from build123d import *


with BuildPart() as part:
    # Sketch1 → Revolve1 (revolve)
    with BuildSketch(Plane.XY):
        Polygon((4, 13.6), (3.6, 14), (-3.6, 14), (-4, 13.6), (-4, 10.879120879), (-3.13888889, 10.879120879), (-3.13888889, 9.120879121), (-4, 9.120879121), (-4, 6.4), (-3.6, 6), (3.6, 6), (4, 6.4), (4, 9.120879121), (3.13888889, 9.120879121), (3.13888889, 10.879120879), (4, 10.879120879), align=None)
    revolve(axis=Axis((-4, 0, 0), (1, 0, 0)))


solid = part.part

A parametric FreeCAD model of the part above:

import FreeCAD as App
import Part
import Sketcher

V = App.Vector

doc = App.newDocument("Part")
body = doc.addObject("PartDesign::Body", "Body")

sketch1 = doc.addObject("Sketcher::SketchObject", "Sketch")
body.addObject(sketch1)
sketch1.AttachmentSupport = (doc.XY_Plane, [""])
sketch1.MapMode = "FlatFace"
sketch1.addGeometry(Part.LineSegment(V(4, 13.6, 0), V(3.6, 14, 0)), False)
sketch1.addGeometry(Part.LineSegment(V(3.6, 14, 0), V(-3.6, 14, 0)), False)
sketch1.addGeometry(Part.LineSegment(V(-3.6, 14, 0), V(-4, 13.6, 0)), False)
sketch1.addGeometry(Part.LineSegment(V(-4, 13.6, 0), V(-4, 10.9, 0)), False)
sketch1.addGeometry(Part.LineSegment(V(-4, 10.9, 0), V(-3.1, 10.9, 0)), False)
sketch1.addGeometry(Part.LineSegment(V(-3.1, 10.9, 0), V(-3.1, 9.1, 0)), False)
sketch1.addGeometry(Part.LineSegment(V(-3.1, 9.1, 0), V(-4, 9.1, 0)), False)
sketch1.addGeometry(Part.LineSegment(V(-4, 9.1, 0), V(-4, 6.4, 0)), False)
sketch1.addGeometry(Part.LineSegment(V(-4, 6.4, 0), V(-3.6, 6, 0)), False)
sketch1.addGeometry(Part.LineSegment(V(-3.6, 6, 0), V(3.6, 6, 0)), False)
sketch1.addGeometry(Part.LineSegment(V(3.6, 6, 0), V(4, 6.4, 0)), False)
sketch1.addGeometry(Part.LineSegment(V(4, 6.4, 0), V(4, 9.1, 0)), False)
sketch1.addGeometry(Part.LineSegment(V(4, 9.1, 0), V(3.1, 9.1, 0)), False)
sketch1.addGeometry(Part.LineSegment(V(3.1, 9.1, 0), V(3.1, 10.9, 0)), False)
sketch1.addGeometry(Part.LineSegment(V(3.1, 10.9, 0), V(4, 10.9, 0)), False)
sketch1.addGeometry(Part.LineSegment(V(4, 10.9, 0), V(4, 13.6, 0)), False)
sketch1.addConstraint(Sketcher.Constraint("Coincident", 0, 2, 1, 1))
sketch1.addConstraint(Sketcher.Constraint("Coincident", 1, 2, 2, 1))
sketch1.addConstraint(Sketcher.Constraint("Coincident", 2, 2, 3, 1))
sketch1.addConstraint(Sketcher.Constraint("Coincident", 3, 2, 4, 1))
sketch1.addConstraint(Sketcher.Constraint("Coincident", 4, 2, 5, 1))
sketch1.addConstraint(Sketcher.Constraint("Coincident", 5, 2, 6, 1))
sketch1.addConstraint(Sketcher.Constraint("Coincident", 6, 2, 7, 1))
sketch1.addConstraint(Sketcher.Constraint("Coincident", 7, 2, 8, 1))
sketch1.addConstraint(Sketcher.Constraint("Coincident", 8, 2, 9, 1))
sketch1.addConstraint(Sketcher.Constraint("Coincident", 9, 2, 10, 1))
sketch1.addConstraint(Sketcher.Constraint("Coincident", 10, 2, 11, 1))
sketch1.addConstraint(Sketcher.Constraint("Coincident", 11, 2, 12, 1))
sketch1.addConstraint(Sketcher.Constraint("Coincident", 12, 2, 13, 1))
sketch1.addConstraint(Sketcher.Constraint("Coincident", 13, 2, 14, 1))
sketch1.addConstraint(Sketcher.Constraint("Coincident", 14, 2, 15, 1))
sketch1.addConstraint(Sketcher.Constraint("Coincident", 15, 2, 0, 1))
sketch1.addConstraint(Sketcher.Constraint("Horizontal", 1))
sketch1.addConstraint(Sketcher.Constraint("Vertical", 3))
sketch1.addConstraint(Sketcher.Constraint("Horizontal", 4))
sketch1.addConstraint(Sketcher.Constraint("Vertical", 5))
sketch1.addConstraint(Sketcher.Constraint("Horizontal", 6))
sketch1.addConstraint(Sketcher.Constraint("Vertical", 7))
sketch1.addConstraint(Sketcher.Constraint("Horizontal", 9))
sketch1.addConstraint(Sketcher.Constraint("Vertical", 11))
sketch1.addConstraint(Sketcher.Constraint("Horizontal", 12))
sketch1.addConstraint(Sketcher.Constraint("Vertical", 13))
sketch1.addConstraint(Sketcher.Constraint("Horizontal", 14))
sketch1.addConstraint(Sketcher.Constraint("Vertical", 15))
sketch1.addConstraint(Sketcher.Constraint("Symmetric", 7, 2, 10, 2, -2))
sketch1.addConstraint(Sketcher.Constraint("Symmetric", 5, 2, 12, 2, -2))
sketch1.addConstraint(Sketcher.Constraint("Symmetric", 3, 2, 14, 2, -2))
sketch1.addConstraint(Sketcher.Constraint("Perpendicular", 0, 2))
sketch1.addConstraint(Sketcher.Constraint("Perpendicular", 2, 8))
sketch1.addConstraint(Sketcher.Constraint("Perpendicular", 8, 10))
sketch1.addConstraint(Sketcher.Constraint("Horizontal", 2, 2, 15, 2))
sketch1.addConstraint(Sketcher.Constraint("Vertical", 3, 2, 6, 2))
sketch1.addConstraint(Sketcher.Constraint("Vertical", 1, 2, 8, 2))
sketch1.addConstraint(Sketcher.Constraint("Vertical", 0, 2, 9, 2))
sketch1.addConstraint(Sketcher.Constraint("Equal", 3, 7))
sketch1.addConstraint(Sketcher.Constraint("DistanceX", 1, 2, 1, 1, 7.2))
sketch1.addConstraint(Sketcher.Constraint("DistanceY", -1, 1, 0, 2, 14.0))
sketch1.addConstraint(Sketcher.Constraint("DistanceX", 2, 2, -1, 1, 4.0))
sketch1.addConstraint(Sketcher.Constraint("DistanceY", -1, 1, 8, 2, 6.0))
sketch1.addConstraint(Sketcher.Constraint("DistanceX", 4, 1, 4, 2, 0.861111))
sketch1.addConstraint(Sketcher.Constraint("DistanceY", 3, 2, 3, 1, 2.720879))
revolution = doc.addObject("PartDesign::Revolution", "Revolution")
body.addObject(revolution)
revolution.Profile = sketch1
revolution.ReferenceAxis = (sketch1, ["H_Axis"])
revolution.Angle = 360

doc.recompute()
